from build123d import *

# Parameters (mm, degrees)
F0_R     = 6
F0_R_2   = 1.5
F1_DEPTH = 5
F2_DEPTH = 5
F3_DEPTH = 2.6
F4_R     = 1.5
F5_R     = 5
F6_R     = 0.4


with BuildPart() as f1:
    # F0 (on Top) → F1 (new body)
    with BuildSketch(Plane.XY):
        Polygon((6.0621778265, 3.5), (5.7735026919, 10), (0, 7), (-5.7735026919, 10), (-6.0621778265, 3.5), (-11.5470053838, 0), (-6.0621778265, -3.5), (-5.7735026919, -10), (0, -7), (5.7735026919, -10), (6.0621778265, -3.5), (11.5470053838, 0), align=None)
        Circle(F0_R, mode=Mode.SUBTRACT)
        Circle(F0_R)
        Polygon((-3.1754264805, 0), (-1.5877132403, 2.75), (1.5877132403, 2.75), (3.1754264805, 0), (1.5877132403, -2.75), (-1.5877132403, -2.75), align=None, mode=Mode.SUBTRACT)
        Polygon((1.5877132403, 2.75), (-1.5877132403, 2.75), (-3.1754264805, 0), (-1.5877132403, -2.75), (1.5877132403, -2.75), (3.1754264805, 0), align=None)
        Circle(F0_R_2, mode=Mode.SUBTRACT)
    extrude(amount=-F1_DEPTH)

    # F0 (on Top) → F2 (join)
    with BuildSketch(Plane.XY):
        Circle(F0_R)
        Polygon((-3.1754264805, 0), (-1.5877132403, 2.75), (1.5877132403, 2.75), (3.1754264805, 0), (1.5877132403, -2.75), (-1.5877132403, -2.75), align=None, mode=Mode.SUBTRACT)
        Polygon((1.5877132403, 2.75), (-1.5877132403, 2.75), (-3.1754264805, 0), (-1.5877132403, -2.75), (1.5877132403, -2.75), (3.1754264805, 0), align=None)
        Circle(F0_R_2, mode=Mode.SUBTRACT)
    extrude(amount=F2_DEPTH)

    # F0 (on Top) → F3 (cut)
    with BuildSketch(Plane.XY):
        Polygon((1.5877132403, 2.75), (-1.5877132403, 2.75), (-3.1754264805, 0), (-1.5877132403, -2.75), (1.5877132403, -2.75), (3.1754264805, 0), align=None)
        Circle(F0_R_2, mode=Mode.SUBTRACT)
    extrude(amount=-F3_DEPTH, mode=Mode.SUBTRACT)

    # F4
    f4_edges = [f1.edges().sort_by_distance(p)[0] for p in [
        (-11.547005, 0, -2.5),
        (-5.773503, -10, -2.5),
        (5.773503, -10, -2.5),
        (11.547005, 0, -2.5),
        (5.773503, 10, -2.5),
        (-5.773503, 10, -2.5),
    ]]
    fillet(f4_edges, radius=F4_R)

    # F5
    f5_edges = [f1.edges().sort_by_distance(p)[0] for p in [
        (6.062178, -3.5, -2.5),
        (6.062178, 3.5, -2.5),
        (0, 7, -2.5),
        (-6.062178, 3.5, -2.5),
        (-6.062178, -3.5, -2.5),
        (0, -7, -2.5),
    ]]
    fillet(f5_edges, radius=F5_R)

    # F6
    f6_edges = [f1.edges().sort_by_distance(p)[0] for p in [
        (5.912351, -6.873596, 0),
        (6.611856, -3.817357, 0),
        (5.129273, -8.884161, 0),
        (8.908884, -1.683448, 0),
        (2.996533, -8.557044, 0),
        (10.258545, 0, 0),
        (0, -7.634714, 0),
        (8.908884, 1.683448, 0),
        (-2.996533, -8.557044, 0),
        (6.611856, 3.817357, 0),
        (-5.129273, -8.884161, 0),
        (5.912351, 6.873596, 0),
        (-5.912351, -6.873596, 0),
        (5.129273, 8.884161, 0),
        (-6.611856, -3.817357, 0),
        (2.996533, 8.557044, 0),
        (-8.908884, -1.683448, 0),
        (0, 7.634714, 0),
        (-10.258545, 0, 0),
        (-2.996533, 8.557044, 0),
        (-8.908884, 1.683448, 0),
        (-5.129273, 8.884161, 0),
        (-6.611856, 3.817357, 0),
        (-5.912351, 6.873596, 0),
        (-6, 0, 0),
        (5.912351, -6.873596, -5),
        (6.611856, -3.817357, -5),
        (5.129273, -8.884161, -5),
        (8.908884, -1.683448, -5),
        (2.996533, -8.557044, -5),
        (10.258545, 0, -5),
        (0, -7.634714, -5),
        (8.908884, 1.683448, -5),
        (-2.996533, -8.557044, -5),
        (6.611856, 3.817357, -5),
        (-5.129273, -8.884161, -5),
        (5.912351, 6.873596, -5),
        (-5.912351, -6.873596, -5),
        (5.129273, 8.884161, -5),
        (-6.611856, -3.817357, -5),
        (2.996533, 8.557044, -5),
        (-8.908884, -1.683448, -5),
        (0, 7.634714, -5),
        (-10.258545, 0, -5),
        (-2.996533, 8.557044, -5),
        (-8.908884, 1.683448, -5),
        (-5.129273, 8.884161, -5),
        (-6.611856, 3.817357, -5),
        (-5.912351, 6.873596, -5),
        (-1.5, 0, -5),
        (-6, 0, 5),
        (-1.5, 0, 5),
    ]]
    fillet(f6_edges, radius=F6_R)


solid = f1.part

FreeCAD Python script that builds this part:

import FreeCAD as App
import Part
import Sketcher
from FreeCAD import Vector
Q = App.Units.Quantity


def edges_at(feature, points):
    """Names of the edges that pass closest to the given points."""
    edges = feature.Shape.Edges
    near = lambda p: min(range(len(edges)), key=lambda i: edges[i].distToShape(Part.Vertex(*p))[0])
    return sorted({f"Edge{near(p) + 1}" for p in points})

doc = App.newDocument("Part")
body = doc.addObject("PartDesign::Body", "Body")

# Sketch on XY plane
sketch1 = body.newObject("Sketcher::SketchObject", "Sketch")
sketch1.AttachmentSupport = (doc.getObject("XY_Plane"), [""])
sketch1.MapMode = "FlatFace"
sketch1.addGeometry(Part.LineSegment(Vector(6.062178, 3.5, 0), Vector(5.773503, 10, 0)), False)
sketch1.addGeometry(Part.LineSegment(Vector(5.773503, 10, 0), Vector(0, 7, 0)), False)
sketch1.addGeometry(Part.LineSegment(Vector(0, 7, 0), Vector(-5.773503, 10, 0)), False)
sketch1.addGeometry(Part.LineSegment(Vector(-5.773503, 10, 0), Vector(-6.062178, 3.5, 0)), False)
sketch1.addGeometry(Part.LineSegment(Vector(-6.062178, 3.5, 0), Vector(-11.547005, 0, 0)), False)
sketch1.addGeometry(Part.LineSegment(Vector(-11.547005, 0, 0), Vector(-6.062178, -3.5, 0)), False)
sketch1.addGeometry(Part.LineSegment(Vector(-6.062178, -3.5, 0), Vector(-5.773503, -10, 0)), False)
sketch1.addGeometry(Part.LineSegment(Vector(-5.773503, -10, 0), Vector(0, -7, 0)), False)
sketch1.addGeometry(Part.LineSegment(Vector(0, -7, 0), Vector(5.773503, -10, 0)), False)
sketch1.addGeometry(Part.LineSegment(Vector(5.773503, -10, 0), Vector(6.062178, -3.5, 0)), False)
sketch1.addGeometry(Part.LineSegment(Vector(6.062178, -3.5, 0), Vector(11.547005, 0, 0)), False)
sketch1.addGeometry(Part.LineSegment(Vector(11.547005, 0, 0), Vector(6.062178, 3.5, 0)), False)
sketch1.addGeometry(Part.Circle(Vector(0, 0, 0), Vector(0, 0, 1), 1.5), False)
sketch1.addConstraint(Sketcher.Constraint("Coincident", 0, 2, 1, 1))
sketch1.addConstraint(Sketcher.Constraint("Coincident", 1, 2, 2, 1))
sketch1.addConstraint(Sketcher.Constraint("Coincident", 2, 2, 3, 1))
sketch1.addConstraint(Sketcher.Constraint("Coincident", 3, 2, 4, 1))
sketch1.addConstraint(Sketcher.Constraint("Coincident", 4, 2, 5, 1))
sketch1.addConstraint(Sketcher.Constraint("Coincident", 5, 2, 6, 1))
sketch1.addConstraint(Sketcher.Constraint("Coincident", 6, 2, 7, 1))
sketch1.addConstraint(Sketcher.Constraint("Coincident", 7, 2, 8, 1))
sketch1.addConstraint(Sketcher.Constraint("Coincident", 8, 2, 9, 1))
sketch1.addConstraint(Sketcher.Constraint("Coincident", 9, 2, 10, 1))
sketch1.addConstraint(Sketcher.Constraint("Coincident", 10, 2, 11, 1))
sketch1.addConstraint(Sketcher.Constraint("Coincident", 11, 2, 0, 1))
sketch1.addConstraint(Sketcher.Constraint("Coincident", 12, 3, -1, 1))
sketch1.addConstraint(Sketcher.Constraint("Symmetric", 0, 2, 6, 2, -1, 1))
sketch1.addConstraint(Sketcher.Constraint("Symmetric", 1, 2, 7, 2, -1, 1))
sketch1.addConstraint(Sketcher.Constraint("Symmetric", 2, 2, 8, 2, -1, 1))
sketch1.addConstraint(Sketcher.Constraint("Symmetric", 3, 2, 9, 2, -1, 1))
sketch1.addConstraint(Sketcher.Constraint("Symmetric", 4, 2, 10, 2, -1, 1))
sketch1.addConstraint(Sketcher.Constraint("Symmetric", 5, 2, 11, 2, -1, 1))
sketch1.addConstraint(Sketcher.Constraint("Symmetric", 0, 2, 2, 2, -2))
sketch1.addConstraint(Sketcher.Constraint("Symmetric", 5, 2, 9, 2, -2))
sketch1.addConstraint(Sketcher.Constraint("PointOnObject", 1, 2, -2))
sketch1.addConstraint(Sketcher.Constraint("PointOnObject", 4, 2, -1))
sketch1.addConstraint(Sketcher.Constraint("Equal", 0, 1))
sketch1.addConstraint(Sketcher.Constraint("Equal", 3, 4))
sketch1.addConstraint(Sketcher.Constraint("Diameter", 12, Q("3 mm")))
sketch1.addConstraint(Sketcher.Constraint("DistanceY", -1, 1, 0, 2, Q("10 mm")))
sketch1.addConstraint(Sketcher.Constraint("DistanceY", -1, 1, 1, 2, Q("7 mm")))
sketch1.addConstraint(Sketcher.Constraint("DistanceY", 5, 2, 3, 2, Q("7 mm")))
sketch1.addConstraint(Sketcher.Constraint("DistanceX", 3, 2, 0, 2, Q("11.835681 mm")))
pad1 = body.newObject("PartDesign::Pad", "Pad")
pad1.Profile = sketch1
pad1.Length = 5
pad1.Reversed = True

# Sketch on XY plane
sketch2 = body.newObject("Sketcher::SketchObject", "Sketch001")
sketch2.AttachmentSupport = (doc.getObject("XY_Plane"), [""])
sketch2.MapMode = "FlatFace"
sketch2.addGeometry(Part.Circle(Vector(0, 0, 0), Vector(0, 0, 1), 6), False)
sketch2.addGeometry(Part.Circle(Vector(0, 0, 0), Vector(0, 0, 1), 1.5), False)
sketch2.addConstraint(Sketcher.Constraint("Coincident", 0, 3, -1, 1))
sketch2.addConstraint(Sketcher.Constraint("Coincident", 1, 3, -1, 1))
sketch2.addConstraint(Sketcher.Constraint("Diameter", 0, Q("12 mm")))
sketch2.addConstraint(Sketcher.Constraint("Diameter", 1, Q("3 mm")))
pad2 = body.newObject("PartDesign::Pad", "Pad001")
pad2.Profile = sketch2
pad2.Length = 5

# Sketch on XY plane
sketch3 = body.newObject("Sketcher::SketchObject", "Sketch002")
sketch3.AttachmentSupport = (doc.getObject("XY_Plane"), [""])
sketch3.MapMode = "FlatFace"
sketch3.addGeometry(Part.LineSegment(Vector(1.587713, 2.75, 0), Vector(-1.587713, 2.75, 0)), False)
sketch3.addGeometry(Part.LineSegment(Vector(-1.587713, 2.75, 0), Vector(-3.175426, 0, 0)), False)
sketch3.addGeometry(Part.LineSegment(Vector(-3.175426, 0, 0), Vector(-1.587713, -2.75, 0)), False)
sketch3.addGeometry(Part.LineSegment(Vector(-1.587713, -2.75, 0), Vector(1.587713, -2.75, 0)), False)
sketch3.addGeometry(Part.LineSegment(Vector(1.587713, -2.75, 0), Vector(3.175426, 0, 0)), False)
sketch3.addGeometry(Part.LineSegment(Vector(3.175426, 0, 0), Vector(1.587713, 2.75, 0)), False)
sketch3.addGeometry(Part.Circle(Vector(0, 0, 0), Vector(0, 0, 1), 1.5), False)
sketch3.addConstraint(Sketcher.Constraint("Coincident", 0, 2, 1, 1))
sketch3.addConstraint(Sketcher.Constraint("Coincident", 1, 2, 2, 1))
sketch3.addConstraint(Sketcher.Constraint("Coincident", 2, 2, 3, 1))
sketch3.addConstraint(Sketcher.Constraint("Coincident", 3, 2, 4, 1))
sketch3.addConstraint(Sketcher.Constraint("Coincident", 4, 2, 5, 1))
sketch3.addConstraint(Sketcher.Constraint("Coincident", 5, 2, 0, 1))
sketch3.addConstraint(Sketcher.Constraint("Horizontal", 0))
sketch3.addConstraint(Sketcher.Constraint("Horizontal", 3))
sketch3.addConstraint(Sketcher.Constraint("Coincident", 6, 3, -1, 1))
sketch3.addConstraint(Sketcher.Constraint("Symmetric", 0, 2, 3, 2, -1, 1))
sketch3.addConstraint(Sketcher.Constraint("Symmetric", 1, 2, 4, 2, -1, 1))
sketch3.addConstraint(Sketcher.Constraint("PointOnObject", 1, 2, -1))
sketch3.addConstraint(Sketcher.Constraint("Parallel", 2, 5))
sketch3.addConstraint(Sketcher.Constraint("Vertical", 0, 2, 2, 2))
sketch3.addConstraint(Sketcher.Constraint("Diameter", 6, Q("3 mm")))
sketch3.addConstraint(Sketcher.Constraint("Angle", 1, Q("-120 deg")))
sketch3.addConstraint(Sketcher.Constraint("DistanceY", 2, 2, 0, 2, Q("5.5 mm")))
sketch3.addConstraint(Sketcher.Constraint("DistanceX", 0, 2, 0, 1, Q("3.175426 mm")))
pocket1 = body.newObject("PartDesign::Pocket", "Pocket")
pocket1.Profile = sketch3
pocket1.Length = 2.6
doc.recompute()

fillet = body.newObject("PartDesign::Fillet", "Fillet")
fillet.Base = (pocket1, edges_at(pocket1, [
    (-11.547, 0, -2.5),
    (-5.774, -10, -2.5),
    (5.774, -10, -2.5),
    (11.547, 0, -2.5),
    (5.774, 10, -2.5),
    (-5.774, 10, -2.5),
]))
fillet.Radius = 1.5
doc.recompute()

fillet2 = body.newObject("PartDesign::Fillet", "Fillet001")
fillet2.Base = (fillet, edges_at(fillet, [
    (6.062, -3.5, -2.5),
    (6.062, 3.5, -2.5),
    (0, 7, -2.5),
    (-6.062, 3.5, -2.5),
    (-6.062, -3.5, -2.5),
    (0, -7, -2.5),
]))
fillet2.Radius = 5
doc.recompute()

fillet3 = body.newObject("PartDesign::Fillet", "Fillet002")
fillet3.Base = (fillet2, edges_at(fillet2, [
    (5.912, -6.874, 0),
    (6.612, -3.817, 0),
    (5.129, -8.884, 0),
    (8.909, -1.683, 0),
    (2.997, -8.557, 0),
    (10.259, 0, 0),
    (0, -7.635, 0),
    (8.909, 1.683, 0),
    (-2.997, -8.557, 0),
    (6.612, 3.817, 0),
    (-5.129, -8.884, 0),
    (5.912, 6.874, 0),
    (-5.912, -6.874, 0),
    (5.129, 8.884, 0),
    (-6.612, -3.817, 0),
    (2.997, 8.557, 0),
    (-8.909, -1.683, 0),
    (0, 7.635, 0),
    (-10.259, 0, 0),
    (-2.997, 8.557, 0),
    (-8.909, 1.683, 0),
    (-5.129, 8.884, 0),
    (-6.612, 3.817, 0),
    (-5.912, 6.874, 0),
    (-6, 0, 0),
    (5.912, -6.874, -5),
    (6.612, -3.817, -5),
    (5.129, -8.884, -5),
    (8.909, -1.683, -5),
    (2.997, -8.557, -5),
    (10.259, 0, -5),
    (0, -7.635, -5),
    (8.909, 1.683, -5),
    (-2.997, -8.557, -5),
    (6.612, 3.817, -5),
    (-5.129, -8.884, -5),
    (5.912, 6.874, -5),
    (-5.912, -6.874, -5),
    (5.129, 8.884, -5),
    (-6.612, -3.817, -5),
    (2.997, 8.557, -5),
    (-8.909, -1.683, -5),
    (0, 7.635, -5),
    (-10.259, 0, -5),
    (-2.997, 8.557, -5),
    (-8.909, 1.683, -5),
    (-5.129, 8.884, -5),
    (-6.612, 3.817, -5),
    (-5.912, 6.874, -5),
    (-1.5, 0, -5),
    (-6, 0, 5),
    (-1.5, 0, 5),
]))
fillet3.Radius = 0.4

doc.recompute()
